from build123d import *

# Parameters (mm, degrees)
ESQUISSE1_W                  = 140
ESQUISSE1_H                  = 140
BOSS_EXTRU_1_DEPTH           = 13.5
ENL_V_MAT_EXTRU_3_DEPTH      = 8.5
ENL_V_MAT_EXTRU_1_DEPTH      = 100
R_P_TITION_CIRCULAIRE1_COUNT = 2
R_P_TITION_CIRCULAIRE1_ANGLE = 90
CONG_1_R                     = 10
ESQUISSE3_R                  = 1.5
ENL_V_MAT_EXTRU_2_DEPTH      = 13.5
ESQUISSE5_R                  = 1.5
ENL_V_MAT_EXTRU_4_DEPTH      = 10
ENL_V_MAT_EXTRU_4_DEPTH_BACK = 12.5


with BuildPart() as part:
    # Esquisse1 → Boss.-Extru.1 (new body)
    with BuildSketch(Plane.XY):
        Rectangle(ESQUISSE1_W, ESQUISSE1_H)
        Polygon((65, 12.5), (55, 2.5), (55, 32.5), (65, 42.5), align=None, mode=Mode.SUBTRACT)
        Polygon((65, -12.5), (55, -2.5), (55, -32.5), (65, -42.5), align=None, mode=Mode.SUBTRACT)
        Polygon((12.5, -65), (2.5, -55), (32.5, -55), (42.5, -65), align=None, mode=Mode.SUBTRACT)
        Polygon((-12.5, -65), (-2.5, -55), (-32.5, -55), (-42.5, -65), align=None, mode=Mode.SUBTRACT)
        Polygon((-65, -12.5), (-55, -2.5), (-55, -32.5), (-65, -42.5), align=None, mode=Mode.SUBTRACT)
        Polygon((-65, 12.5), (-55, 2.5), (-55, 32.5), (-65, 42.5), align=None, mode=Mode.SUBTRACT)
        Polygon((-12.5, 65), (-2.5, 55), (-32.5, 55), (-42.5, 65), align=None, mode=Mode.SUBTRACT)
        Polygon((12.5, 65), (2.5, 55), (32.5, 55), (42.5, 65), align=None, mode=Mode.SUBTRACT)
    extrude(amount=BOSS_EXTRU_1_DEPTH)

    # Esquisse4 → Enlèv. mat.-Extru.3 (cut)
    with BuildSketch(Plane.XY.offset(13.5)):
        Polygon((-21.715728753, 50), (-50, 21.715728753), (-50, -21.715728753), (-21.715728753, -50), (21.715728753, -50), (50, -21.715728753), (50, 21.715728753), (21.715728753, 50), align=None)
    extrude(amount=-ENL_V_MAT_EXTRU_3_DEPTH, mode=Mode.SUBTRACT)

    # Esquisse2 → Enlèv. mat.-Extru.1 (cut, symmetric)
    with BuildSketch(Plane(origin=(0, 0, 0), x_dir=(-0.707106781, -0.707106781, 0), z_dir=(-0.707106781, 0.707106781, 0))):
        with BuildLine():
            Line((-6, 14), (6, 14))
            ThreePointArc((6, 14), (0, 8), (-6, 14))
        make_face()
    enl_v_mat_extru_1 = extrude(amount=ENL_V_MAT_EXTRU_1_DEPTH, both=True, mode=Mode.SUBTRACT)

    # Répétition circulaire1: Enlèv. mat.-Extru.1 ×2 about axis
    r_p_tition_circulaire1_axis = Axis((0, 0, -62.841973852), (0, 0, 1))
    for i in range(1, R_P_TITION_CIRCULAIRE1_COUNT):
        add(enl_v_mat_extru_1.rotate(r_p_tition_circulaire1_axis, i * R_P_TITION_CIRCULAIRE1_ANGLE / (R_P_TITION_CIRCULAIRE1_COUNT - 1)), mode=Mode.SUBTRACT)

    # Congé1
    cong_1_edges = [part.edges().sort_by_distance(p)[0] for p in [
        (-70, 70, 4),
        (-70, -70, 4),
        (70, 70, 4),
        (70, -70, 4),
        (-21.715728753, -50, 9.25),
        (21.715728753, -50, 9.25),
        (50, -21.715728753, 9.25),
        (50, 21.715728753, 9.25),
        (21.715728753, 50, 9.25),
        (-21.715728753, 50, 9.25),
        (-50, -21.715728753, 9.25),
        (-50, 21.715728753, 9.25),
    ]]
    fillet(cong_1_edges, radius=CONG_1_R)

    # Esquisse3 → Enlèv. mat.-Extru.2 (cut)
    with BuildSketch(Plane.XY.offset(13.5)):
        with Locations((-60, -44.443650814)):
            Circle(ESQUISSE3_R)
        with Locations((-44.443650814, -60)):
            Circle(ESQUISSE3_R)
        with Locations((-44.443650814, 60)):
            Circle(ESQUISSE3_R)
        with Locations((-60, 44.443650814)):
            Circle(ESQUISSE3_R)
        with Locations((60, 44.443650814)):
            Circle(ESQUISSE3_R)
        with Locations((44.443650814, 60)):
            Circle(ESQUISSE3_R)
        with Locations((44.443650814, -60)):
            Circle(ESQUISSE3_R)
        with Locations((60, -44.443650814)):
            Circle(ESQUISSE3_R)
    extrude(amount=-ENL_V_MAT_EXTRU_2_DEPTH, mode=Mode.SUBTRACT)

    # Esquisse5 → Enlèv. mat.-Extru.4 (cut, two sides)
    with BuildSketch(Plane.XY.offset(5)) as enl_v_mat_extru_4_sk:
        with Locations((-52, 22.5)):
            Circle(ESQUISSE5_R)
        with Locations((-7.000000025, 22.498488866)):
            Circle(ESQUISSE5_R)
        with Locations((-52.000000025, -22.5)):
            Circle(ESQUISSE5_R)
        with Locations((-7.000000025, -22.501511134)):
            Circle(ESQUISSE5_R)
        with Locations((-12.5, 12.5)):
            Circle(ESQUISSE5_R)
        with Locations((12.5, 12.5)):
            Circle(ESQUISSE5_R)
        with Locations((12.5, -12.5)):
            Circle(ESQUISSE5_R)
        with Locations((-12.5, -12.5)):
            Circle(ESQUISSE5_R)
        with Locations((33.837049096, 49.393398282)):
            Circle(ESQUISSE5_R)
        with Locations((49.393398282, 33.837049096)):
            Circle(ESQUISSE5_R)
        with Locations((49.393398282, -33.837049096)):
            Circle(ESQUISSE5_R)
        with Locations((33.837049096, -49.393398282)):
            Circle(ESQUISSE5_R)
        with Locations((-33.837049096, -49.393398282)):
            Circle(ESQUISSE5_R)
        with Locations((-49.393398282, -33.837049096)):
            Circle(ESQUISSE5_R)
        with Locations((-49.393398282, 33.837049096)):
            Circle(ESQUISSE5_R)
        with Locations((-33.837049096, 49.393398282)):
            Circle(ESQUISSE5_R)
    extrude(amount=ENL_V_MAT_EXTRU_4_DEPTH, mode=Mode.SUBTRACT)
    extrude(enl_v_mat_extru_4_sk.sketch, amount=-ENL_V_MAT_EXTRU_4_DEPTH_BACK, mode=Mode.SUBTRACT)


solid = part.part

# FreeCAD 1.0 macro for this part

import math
import FreeCAD as App
import Part
import Sketcher

V = App.Vector


def edges_at(feature, points):
    """Names of the edges that pass closest to the given points."""
    edges = feature.Shape.Edges
    near = lambda p: min(range(len(edges)), key=lambda i: edges[i].distToShape(Part.Vertex(*p))[0])
    return sorted({f"Edge{near(p) + 1}" for p in points})


def add_polygon(sketch, points):
    """Adds a closed chain of lines whose ends are joined by coincident constraints."""
    first, n = sketch.GeometryCount, len(points)
    for a, b in zip(points, points[1:] + points[:1]):
        sketch.addGeometry(Part.LineSegment(App.Vector(*a, 0), App.Vector(*b, 0)), False)
    for i in range(n):
        sketch.addConstraint(Sketcher.Constraint("Coincident", first + i, 2, first + (i + 1) % n, 1))

doc = App.newDocument("Part")
body = doc.addObject("PartDesign::Body", "Body")

# Sketch on XY plane
sketch1 = body.newObject("Sketcher::SketchObject", "Sketch")
sketch1.AttachmentSupport = (doc.getObject("XY_Plane"), [""])
sketch1.MapMode = "FlatFace"
add_polygon(sketch1, [(-70, 70), (-70, -70), (70, -70), (70, 70)])  # lines 0-3
add_polygon(sketch1, [(-2, -55), (-12, -65), (-42, -65), (-32, -55)])  # lines 4-7
add_polygon(sketch1, [(-65, -42), (-65, -12), (-55, -2), (-55, -32)])  # lines 8-11
add_polygon(sketch1, [(42, -65), (12, -65), (2, -55), (32, -55)])  # lines 12-15
add_polygon(sketch1, [(55, -2), (65, -12), (65, -42), (55, -32)])  # lines 16-19
add_polygon(sketch1, [(-55, 2), (-65, 12), (-65, 42), (-55, 32)])  # lines 20-23
add_polygon(sketch1, [(-42, 65), (-12, 65), (-2, 55), (-32, 55)])  # lines 24-27
add_polygon(sketch1, [(65, 42), (65, 12), (55, 2), (55, 32)])  # lines 28-31
add_polygon(sketch1, [(2, 55), (12, 65), (42, 65), (32, 55)])  # lines 32-35
sketch1.addConstraint([
    Sketcher.Constraint("Vertical", 0),
    Sketcher.Constraint("Horizontal", 1),
    Sketcher.Constraint("Vertical", 2),
    Sketcher.Constraint("Horizontal", 3),
    Sketcher.Constraint("Horizontal", 5),
    Sketcher.Constraint("Horizontal", 7),
    Sketcher.Constraint("Vertical", 8),
    Sketcher.Constraint("Vertical", 10),
    Sketcher.Constraint("Horizontal", 12),
    Sketcher.Constraint("Horizontal", 14),
    Sketcher.Constraint("Vertical", 17),
    Sketcher.Constraint("Vertical", 19),
    Sketcher.Constraint("Vertical", 21),
    Sketcher.Constraint("Vertical", 23),
    Sketcher.Constraint("Horizontal", 24),
    Sketcher.Constraint("Horizontal", 26),
    Sketcher.Constraint("Vertical", 28),
    Sketcher.Constraint("Vertical", 30),
    Sketcher.Constraint("Horizontal", 33),
    Sketcher.Constraint("Horizontal", 35),
    Sketcher.Constraint("Symmetric", 0, 2, 2, 2, -1, 1),
    Sketcher.Constraint("Symmetric", 16, 2, 20, 2, -1, 1),
    Sketcher.Constraint("Symmetric", 18, 2, 22, 2, -1, 1),
    Sketcher.Constraint("Symmetric", 12, 2, 24, 2, -1, 1),
    Sketcher.Constraint("Symmetric", 13, 2, 25, 2, -1, 1),
    Sketcher.Constraint("Symmetric", 8, 2, 28, 2, -1, 1),
    Sketcher.Constraint("Symmetric", 9, 2, 29, 2, -1, 1),
    Sketcher.Constraint("Symmetric", 4, 2, 32, 2, -1, 1),
    Sketcher.Constraint("Symmetric", 6, 2, 34, 2, -1, 1),
    Sketcher.Constraint("Symmetric", 4, 2, 12, 2, -2),
    Sketcher.Constraint("Symmetric", 7, 2, 13, 2, -2),
    Sketcher.Constraint("Symmetric", 8, 2, 16, 2, -2),
    Sketcher.Constraint("Symmetric", 10, 2, 18, 2, -2),
    Sketcher.Constraint("Parallel", 4, 6),
    Sketcher.Constraint("Parallel", 6, 9),
    Sketcher.Constraint("Parallel", 9, 11),
    Sketcher.Constraint("Perpendicular", 11, 13),
    Sketcher.Constraint("Parallel", 13, 15),
    Sketcher.Constraint("Parallel", 15, 16),
    Sketcher.Constraint("Parallel", 16, 18),
    Sketcher.Constraint("Parallel", 18, 20),
    Sketcher.Constraint("Parallel", 20, 22),
    Sketcher.Constraint("Parallel", 25, 27),
    Sketcher.Constraint("Parallel", 29, 31),
    Sketcher.Constraint("Parallel", 31, 32),
    Sketcher.Constraint("Parallel", 32, 34),
    Sketcher.Constraint("Horizontal", 22, 2, 30, 2),
    Sketcher.Constraint("Vertical", 6, 2, 26, 2),
    Sketcher.Constraint("Vertical", 15, 2, 33, 2),
    Sketcher.Constraint("Equal", 3, 0),
    Sketcher.Constraint("Equal", 35, 8),
    Sketcher.Constraint("Equal", 6, 9),
    Sketcher.Constraint("DistanceX", 1, 1, 1, 2, 140.0),
    Sketcher.Constraint("DistanceX", 5, 2, 5, 1, 30.0),
    Sketcher.Constraint("DistanceY", 4, 2, -1, 1, 65.0),
    Sketcher.Constraint("DistanceY", 6, 2, -1, 1, 55.0),
    Sketcher.Constraint("DistanceX", 8, 2, -1, 1, 65.0),
    Sketcher.Constraint("DistanceX", 7, 2, 12, 2, 15.0),
    Sketcher.Constraint("DistanceY", 9, 2, 20, 2, 15.0),
])
pad1 = body.newObject("PartDesign::Pad", "Pad")
pad1.Profile = sketch1
pad1.Length = 13.5

# Sketch on XY plane
sketch2 = body.newObject("Sketcher::SketchObject", "Sketch001")
sketch2.AttachmentSupport = (doc.getObject("XY_Plane"), [""])
sketch2.MapMode = "FlatFace"
sketch2.AttachmentOffset = App.Placement(V(0, 0, 13.5), App.Rotation())
add_polygon(sketch2, [(-22, 50), (-50, 22), (-50, -22), (-22, -50), (22, -50), (50, -22), (50, 22), (22, 50)])  # lines 0-7
sketch2.addConstraint([
    Sketcher.Constraint("Vertical", 1),
    Sketcher.Constraint("Horizontal", 3),
    Sketcher.Constraint("Vertical", 5),
    Sketcher.Constraint("Horizontal", 7),
    Sketcher.Constraint("Symmetric", 0, 2, 4, 2, -1, 1),
    Sketcher.Constraint("Symmetric", 2, 2, 6, 2, -1, 1),
    Sketcher.Constraint("Perpendicular", 0, 2),
    Sketcher.Constraint("Perpendicular", 2, 4),
    Sketcher.Constraint("Perpendicular", 4, 6),
    Sketcher.Constraint("Horizontal", 1, 2, 4, 2),
    Sketcher.Constraint("Vertical", 3, 2, 6, 2),
    Sketcher.Constraint("Equal", 7, 1),
    Sketcher.Constraint("Distance", 0, 40.0),
    Sketcher.Constraint("DistanceX", 0, 2, -1, 1, 50.0),
])
pocket1 = body.newObject("PartDesign::Pocket", "Pocket")
pocket1.Profile = sketch2
pocket1.Length = 8.5

# Sketch on an angled plane
sketch3 = body.newObject("Sketcher::SketchObject", "Sketch002")
sketch3.Placement = App.Placement(V(0, 0, 0), App.Rotation(V(-0.707106781, -0.707106781, 0), V(0, 0, 0.999999999), V(-0.707106781, 0.707106781, 0), "ZXY"))
sketch3.addGeometry([
    Part.LineSegment(V(6, 14, 0), V(-6, 14, 0)),
    Part.ArcOfCircle(Part.Circle(V(0, 14, 0), V(0, 0, 1), 6), math.radians(180), math.radians(360)),
], False)
sketch3.addConstraint([
    Sketcher.Constraint("Coincident", 0, 1, 1, 2),
    Sketcher.Constraint("Coincident", 1, 1, 0, 2),
    Sketcher.Constraint("Horizontal", 0),
    Sketcher.Constraint("PointOnObject", 1, 3, -2),
    Sketcher.Constraint("Horizontal", 1, 3, 0, 1),
    Sketcher.Constraint("Radius", 1, 6.0),
    Sketcher.Constraint("DistanceY", -1, 1, 1, 3, 14.0),
])
pocket2 = body.newObject("PartDesign::Pocket", "Pocket001")
pocket2.Profile = sketch3
pocket2.Length = 200
pocket2.Midplane = True
doc.recompute()

polarpattern = body.newObject("PartDesign::PolarPattern", "PolarPattern")
polarpattern.Originals = [pocket2]
polarpattern.Axis = (doc.getObject("Z_Axis"), [""])
polarpattern.Angle = 90
polarpattern.Occurrences = 2
body.Tip = polarpattern
doc.recompute()

fillet = body.newObject("PartDesign::Fillet", "Fillet")
fillet.Base = (polarpattern, edges_at(polarpattern, [
    (-70, 70, 4),
    (-70, -70, 4),
    (70, 70, 4),
    (70, -70, 4),
    (-21.716, -50, 9.25),
    (21.716, -50, 9.25),
    (50, -21.716, 9.25),
    (50, 21.716, 9.25),
    (21.716, 50, 9.25),
    (-21.716, 50, 9.25),
    (-50, -21.716, 9.25),
    (-50, 21.716, 9.25),
]))
fillet.Radius = 10

# Sketch on XY plane
sketch4 = body.newObject("Sketcher::SketchObject", "Sketch003")
sketch4.AttachmentSupport = (doc.getObject("XY_Plane"), [""])
sketch4.MapMode = "FlatFace"
sketch4.AttachmentOffset = App.Placement(V(0, 0, 13.5), App.Rotation())
sketch4.addGeometry([
    Part.Circle(V(-60, -44.4, 0), V(0, 0, 1), 1.5),  # 0
    Part.Circle(V(-44.4, -60, 0), V(0, 0, 1), 1.5),  # 1
    Part.Circle(V(-44.4, 60, 0), V(0, 0, 1), 1.5),  # 2
    Part.Circle(V(-60, 44.4, 0), V(0, 0, 1), 1.5),  # 3
    Part.Circle(V(60, 44.4, 0), V(0, 0, 1), 1.5),  # 4
    Part.Circle(V(44.4, 60, 0), V(0, 0, 1), 1.5),  # 5
    Part.Circle(V(44.4, -60, 0), V(0, 0, 1), 1.5),  # 6
    Part.Circle(V(60, -44.4, 0), V(0, 0, 1), 1.5),  # 7
], False)
sketch4.addConstraint([
    Sketcher.Constraint("Equal", 0, 1),
    Sketcher.Constraint("Equal", 1, 2),
    Sketcher.Constraint("Equal", 2, 3),
    Sketcher.Constraint("Equal", 3, 4),
    Sketcher.Constraint("Equal", 4, 5),
    Sketcher.Constraint("Equal", 5, 6),
    Sketcher.Constraint("Equal", 6, 7),
    Sketcher.Constraint("Symmetric", 0, 3, 4, 3, -1, 1),
    Sketcher.Constraint("Symmetric", 1, 3, 5, 3, -1, 1),
    Sketcher.Constraint("Symmetric", 2, 3, 6, 3, -1, 1),
    Sketcher.Constraint("Symmetric", 3, 3, 7, 3, -1, 1),
    Sketcher.Constraint("Symmetric", 3, 3, 4, 3, -2),
    Sketcher.Constraint("Symmetric", 2, 3, 5, 3, -2),
    Sketcher.Constraint("Diameter", 0, 3.0),
    Sketcher.Constraint("DistanceX", 0, 3, -1, 1, 60.0),
    Sketcher.Constraint("DistanceY", 1, 3, -1, 1, 60.0),
    Sketcher.Constraint("DistanceY", 0, 3, 3, 3, 88.887302),
    Sketcher.Constraint("DistanceX", 2, 3, 5, 3, 88.887302),
])
pocket3 = body.newObject("PartDesign::Pocket", "Pocket002")
pocket3.Profile = sketch4
pocket3.Length = 13.5

# Sketch on XY plane
sketch5 = body.newObject("Sketcher::SketchObject", "Sketch004")
sketch5.AttachmentSupport = (doc.getObject("XY_Plane"), [""])
sketch5.MapMode = "FlatFace"
sketch5.AttachmentOffset = App.Placement(V(0, 0, 5), App.Rotation())
sketch5.addGeometry([
    Part.Circle(V(-52, 22.5, 0), V(0, 0, 1), 1.5),  # 0
    Part.Circle(V(-7, 22.5, 0), V(0, 0, 1), 1.5),  # 1
    Part.Circle(V(-52, -22.5, 0), V(0, 0, 1), 1.5),  # 2
    Part.Circle(V(-7, -22.5, 0), V(0, 0, 1), 1.5),  # 3
    Part.Circle(V(-12.5, 12.5, 0), V(0, 0, 1), 1.5),  # 4
    Part.Circle(V(12.5, 12.5, 0), V(0, 0, 1), 1.5),  # 5
    Part.Circle(V(12.5, -12.5, 0), V(0, 0, 1), 1.5),  # 6
    Part.Circle(V(-12.5, -12.5, 0), V(0, 0, 1), 1.5),  # 7
    Part.Circle(V(33.8, 49.4, 0), V(0, 0, 1), 1.5),  # 8
    Part.Circle(V(49.4, 33.8, 0), V(0, 0, 1), 1.5),  # 9
    Part.Circle(V(49.4, -33.8, 0), V(0, 0, 1), 1.5),  # 10
    Part.Circle(V(33.8, -49.4, 0), V(0, 0, 1), 1.5),  # 11
    Part.Circle(V(-33.8, -49.4, 0), V(0, 0, 1), 1.5),  # 12
    Part.Circle(V(-49.4, -33.8, 0), V(0, 0, 1), 1.5),  # 13
    Part.Circle(V(-49.4, 33.8, 0), V(0, 0, 1), 1.5),  # 14
    Part.Circle(V(-33.8, 49.4, 0), V(0, 0, 1), 1.5),  # 15
], False)
sketch5.addConstraint([
    Sketcher.Constraint("Equal", 0, 1),
    Sketcher.Constraint("Equal", 1, 2),
    Sketcher.Constraint("Equal", 2, 3),
    Sketcher.Constraint("Equal", 3, 4),
    Sketcher.Constraint("Equal", 4, 5),
    Sketcher.Constraint("Equal", 5, 6),
    Sketcher.Constraint("Equal", 6, 7),
    Sketcher.Constraint("Equal", 7, 8),
    Sketcher.Constraint("Equal", 8, 9),
    Sketcher.Constraint("Equal", 9, 10),
    Sketcher.Constraint("Equal", 10, 11),
    Sketcher.Constraint("Equal", 11, 12),
    Sketcher.Constraint("Equal", 12, 13),
    Sketcher.Constraint("Equal", 13, 14),
    Sketcher.Constraint("Equal", 14, 15),
    Sketcher.Constraint("Symmetric", 4, 3, 6, 3, -1, 1),
    Sketcher.Constraint("Symmetric", 5, 3, 7, 3, -1, 1),
    Sketcher.Constraint("Symmetric", 8, 3, 12, 3, -1, 1),
    Sketcher.Constraint("Symmetric", 9, 3, 13, 3, -1, 1),
    Sketcher.Constraint("Symmetric", 10, 3, 14, 3, -1, 1),
    Sketcher.Constraint("Symmetric", 11, 3, 15, 3, -1, 1),
    Sketcher.Constraint("Symmetric", 4, 3, 5, 3, -2),
    Sketcher.Constraint("Symmetric", 11, 3, 12, 3, -2),
    Sketcher.Constraint("Symmetric", 10, 3, 13, 3, -2),
    Sketcher.Constraint("Symmetric", 0, 3, 2, 3, -1),
    Sketcher.Constraint("Vertical", 1, 3, 3, 3),
    Sketcher.Constraint("Diameter", 0, 3.0),
    Sketcher.Constraint("DistanceX", 0, 3, -1, 1, 52.0),
    Sketcher.Constraint("DistanceX", 1, 3, -1, 1, 7.0),
    Sketcher.Constraint("DistanceY", 2, 3, 0, 3, 45.0),
    Sketcher.Constraint("DistanceY", 3, 3, 1, 3, 45.0),
    Sketcher.Constraint("DistanceY", 4, 3, 0, 3, 10.0),
    Sketcher.Constraint("DistanceX", 4, 3, 5, 3, 25.0),
    Sketcher.Constraint("DistanceY", -1, 1, 8, 3, 49.393398),
    Sketcher.Constraint("DistanceX", -1, 1, 9, 3, 49.393398),
    Sketcher.Constraint("DistanceY", 10, 3, 9, 3, 67.674098),
    Sketcher.Constraint("DistanceY", -1, 1, 1, 3, 22.498489),
    Sketcher.Constraint("DistanceX", -1, 1, 8, 3, 33.837049),
])
pocket4 = body.newObject("PartDesign::Pocket", "Pocket003")
pocket4.Profile = sketch5
pocket4.Type = "ThroughAll"
pocket4.Midplane = True

doc.recompute()
